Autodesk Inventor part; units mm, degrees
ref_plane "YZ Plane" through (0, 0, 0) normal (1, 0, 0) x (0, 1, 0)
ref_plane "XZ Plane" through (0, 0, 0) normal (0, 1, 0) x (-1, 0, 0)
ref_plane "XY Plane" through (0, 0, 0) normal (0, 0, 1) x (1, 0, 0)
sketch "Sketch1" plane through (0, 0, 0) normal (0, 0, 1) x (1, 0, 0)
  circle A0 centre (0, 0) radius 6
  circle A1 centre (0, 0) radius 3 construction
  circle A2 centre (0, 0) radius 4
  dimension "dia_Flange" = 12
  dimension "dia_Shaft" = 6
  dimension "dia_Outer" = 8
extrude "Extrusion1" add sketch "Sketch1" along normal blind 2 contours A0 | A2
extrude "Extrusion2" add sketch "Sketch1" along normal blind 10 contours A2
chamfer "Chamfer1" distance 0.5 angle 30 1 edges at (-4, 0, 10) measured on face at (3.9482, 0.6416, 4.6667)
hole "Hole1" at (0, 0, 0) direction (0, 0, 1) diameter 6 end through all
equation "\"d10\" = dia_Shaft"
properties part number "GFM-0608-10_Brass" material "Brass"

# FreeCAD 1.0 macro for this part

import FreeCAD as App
import Part
import Sketcher
from FreeCAD import Vector
Q = App.Units.Quantity


def edges_at(feature, points):
    """Names of the edges that pass closest to the given points."""
    edges = feature.Shape.Edges
    near = lambda p: min(range(len(edges)), key=lambda i: edges[i].distToShape(Part.Vertex(*p))[0])
    return sorted({f"Edge{near(p) + 1}" for p in points})

doc = App.newDocument("Part")
body = doc.addObject("PartDesign::Body", "Body")

sketch1 = doc.addObject("Sketcher::SketchObject", "Sketch")
body.addObject(sketch1)
sketch1.AttachmentSupport = (doc.XY_Plane, [""])
sketch1.MapMode = "FlatFace"
sketch1.addGeometry(Part.Circle(Vector(0, 0, 0), Vector(0, 0, 1), 6), False)
sketch1.addConstraint(Sketcher.Constraint("Coincident", 0, 3, -1, 1))
sketch1.addConstraint(Sketcher.Constraint("Diameter", 0, Q("12 mm")))
pad1 = doc.addObject("PartDesign::Pad", "Pad")
body.addObject(pad1)
pad1.Profile = sketch1
pad1.Length = 2

sketch2 = doc.addObject("Sketcher::SketchObject", "Sketch001")
body.addObject(sketch2)
sketch2.AttachmentSupport = (doc.XY_Plane, [""])
sketch2.MapMode = "FlatFace"
sketch2.addGeometry(Part.Circle(Vector(0, 0, 0), Vector(0, 0, 1), 4), False)
sketch2.addConstraint(Sketcher.Constraint("Coincident", 0, 3, -1, 1))
sketch2.addConstraint(Sketcher.Constraint("Diameter", 0, Q("8 mm")))
pad2 = doc.addObject("PartDesign::Pad", "Pad001")
body.addObject(pad2)
pad2.Profile = sketch2
pad2.Length = 10
doc.recompute()

chamfer = doc.addObject("PartDesign::Chamfer", "Chamfer")
body.addObject(chamfer)
chamfer.Base = (pad2, edges_at(pad2, [(-4, 0, 10)]))
chamfer.ChamferType = "Distance and Angle"
chamfer.Size = 0.5
chamfer.Angle = 30

sketch3 = doc.addObject("Sketcher::SketchObject", "Sketch002")
body.addObject(sketch3)
sketch3.AttachmentSupport = (doc.XY_Plane, [""])
sketch3.MapMode = "FlatFace"
sketch3.addGeometry(Part.Circle(Vector(0, 0, 0), Vector(0, 0, 1), 3), False)
sketch3.addConstraint(Sketcher.Constraint("Coincident", 0, 3, -1, 1))
sketch3.addConstraint(Sketcher.Constraint("Diameter", 0, Q("6 mm")))
doc.recompute()
hole = doc.addObject("PartDesign::Hole", "Hole")
body.addObject(hole)
hole.Profile = sketch3
hole.ThreadType = "None"
hole.Diameter = 6
hole.DepthType = "ThroughAll"
hole.Reversed = True

doc.recompute()
